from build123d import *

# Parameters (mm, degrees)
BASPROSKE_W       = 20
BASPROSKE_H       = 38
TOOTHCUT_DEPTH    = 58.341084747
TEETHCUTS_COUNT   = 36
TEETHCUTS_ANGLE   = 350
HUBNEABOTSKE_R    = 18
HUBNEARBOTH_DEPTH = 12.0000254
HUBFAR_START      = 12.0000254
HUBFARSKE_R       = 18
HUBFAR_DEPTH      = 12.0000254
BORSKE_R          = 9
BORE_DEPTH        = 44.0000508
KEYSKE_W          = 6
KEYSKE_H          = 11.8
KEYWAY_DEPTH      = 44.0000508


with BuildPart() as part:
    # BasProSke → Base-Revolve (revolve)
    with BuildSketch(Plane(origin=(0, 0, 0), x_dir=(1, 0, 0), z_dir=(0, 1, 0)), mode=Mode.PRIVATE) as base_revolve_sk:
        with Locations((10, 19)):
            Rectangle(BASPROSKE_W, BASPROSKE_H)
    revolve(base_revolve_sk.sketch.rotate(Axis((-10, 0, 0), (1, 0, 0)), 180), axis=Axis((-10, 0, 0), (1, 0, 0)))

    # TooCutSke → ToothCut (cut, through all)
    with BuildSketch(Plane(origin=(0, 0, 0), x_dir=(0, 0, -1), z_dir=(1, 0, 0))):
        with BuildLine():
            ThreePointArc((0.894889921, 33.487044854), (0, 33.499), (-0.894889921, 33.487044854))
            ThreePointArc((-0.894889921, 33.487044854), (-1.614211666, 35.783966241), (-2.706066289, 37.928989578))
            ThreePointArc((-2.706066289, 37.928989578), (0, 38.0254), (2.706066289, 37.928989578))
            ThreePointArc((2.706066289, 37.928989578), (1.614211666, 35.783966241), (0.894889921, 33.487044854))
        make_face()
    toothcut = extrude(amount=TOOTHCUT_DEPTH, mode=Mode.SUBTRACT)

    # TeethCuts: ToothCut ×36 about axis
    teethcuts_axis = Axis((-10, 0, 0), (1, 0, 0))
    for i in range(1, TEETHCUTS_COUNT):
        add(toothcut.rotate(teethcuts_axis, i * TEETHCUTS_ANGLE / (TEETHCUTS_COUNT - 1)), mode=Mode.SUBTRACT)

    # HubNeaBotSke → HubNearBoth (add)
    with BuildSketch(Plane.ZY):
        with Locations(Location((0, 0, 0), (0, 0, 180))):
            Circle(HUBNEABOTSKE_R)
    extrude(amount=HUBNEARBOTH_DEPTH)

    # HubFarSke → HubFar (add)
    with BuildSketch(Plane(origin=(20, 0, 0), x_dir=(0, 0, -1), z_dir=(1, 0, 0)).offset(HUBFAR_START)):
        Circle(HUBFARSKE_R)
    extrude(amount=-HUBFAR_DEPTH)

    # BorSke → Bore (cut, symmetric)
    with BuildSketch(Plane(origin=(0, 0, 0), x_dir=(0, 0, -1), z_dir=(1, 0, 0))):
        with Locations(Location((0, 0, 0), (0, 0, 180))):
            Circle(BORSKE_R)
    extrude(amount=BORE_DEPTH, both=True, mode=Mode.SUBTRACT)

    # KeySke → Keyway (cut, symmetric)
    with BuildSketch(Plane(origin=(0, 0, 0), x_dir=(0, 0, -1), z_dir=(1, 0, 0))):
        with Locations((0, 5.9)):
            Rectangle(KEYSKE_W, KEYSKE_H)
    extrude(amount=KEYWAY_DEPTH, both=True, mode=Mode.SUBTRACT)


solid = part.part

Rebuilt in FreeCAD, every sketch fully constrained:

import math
import FreeCAD as App
import Part
import Sketcher
Q = App.Units.Quantity


def add_polygon(sketch, points):
    """Adds a closed chain of lines whose ends are joined by coincident constraints."""
    first, n = sketch.GeometryCount, len(points)
    for a, b in zip(points, points[1:] + points[:1]):
        sketch.addGeometry(Part.LineSegment(App.Vector(*a, 0), App.Vector(*b, 0)), False)
    for i in range(n):
        sketch.addConstraint(Sketcher.Constraint("Coincident", first + i, 2, first + (i + 1) % n, 1))

doc = App.newDocument("Part")
body = doc.addObject("PartDesign::Body", "Body")

# Sketch on XZ plane
sketch1 = body.newObject("Sketcher::SketchObject", "Sketch")
sketch1.AttachmentSupport = (doc.getObject("XZ_Plane"), [""])
sketch1.MapMode = "FlatFace"
add_polygon(sketch1, [(0, -38), (0, 0), (20, 0), (20, -38)])  # lines 0-3
sketch1.addConstraint([
    Sketcher.Constraint("Vertical", 0),
    Sketcher.Constraint("Horizontal", 1),
    Sketcher.Constraint("Vertical", 2),
    Sketcher.Constraint("Horizontal", 3),
    Sketcher.Constraint("Coincident", 0, 2, -1, 1),
    Sketcher.Constraint("DistanceX", 1, 1, 1, 2, Q("20 mm")),
    Sketcher.Constraint("DistanceY", 0, 1, 0, 2, Q("38 mm")),
])
revolution = body.newObject("PartDesign::Revolution", "Revolution")
revolution.Profile = sketch1
revolution.ReferenceAxis = (sketch1, ["H_Axis"])
revolution.Angle = 360

# Sketch on YZ plane
sketch2 = body.newObject("Sketcher::SketchObject", "Sketch001")
sketch2.AttachmentSupport = (doc.getObject("YZ_Plane"), [""])
sketch2.MapMode = "FlatFace"
sketch2.addGeometry([
    Part.ArcOfCircle(Part.Circle(App.Vector(-0.000001, 0, 0), App.Vector(0, 0, 1), 33.499001), math.radians(-1.530777), math.radians(1.530777)),
    Part.ArcOfCircle(Part.Circle(App.Vector(30.347042, -14.948373, 0), App.Vector(0, 0, 1), 14.4), math.radians(58.229095), math.radians(77.405136)),
    Part.ArcOfCircle(Part.Circle(App.Vector(0, 0, 0), App.Vector(0, 0, 1), 38.0254), math.radians(-4.080887), math.radians(4.080887)),
    Part.ArcOfCircle(Part.Circle(App.Vector(30.347042, 14.948373, 0), App.Vector(0, 0, 1), 14.4), math.radians(-77.405136), math.radians(-58.229095)),
], False)
sketch2.addConstraint([
    Sketcher.Constraint("Coincident", 0, 1, 1, 2),
    Sketcher.Constraint("Coincident", 1, 1, 2, 1),
    Sketcher.Constraint("Coincident", 2, 2, 3, 2),
    Sketcher.Constraint("Coincident", 3, 1, 0, 2),
    Sketcher.Constraint("Coincident", 0, 3, -1, 1),
    Sketcher.Constraint("Coincident", 2, 3, -1, 1),
    Sketcher.Constraint("Equal", 1, 3),
    Sketcher.Constraint("Symmetric", 1, 3, 3, 3, -1),
    Sketcher.Constraint("Radius", 1, Q("14.4 mm")),
    Sketcher.Constraint("Radius", 0, Q("33.499001 mm")),
    Sketcher.Constraint("Radius", 2, Q("38.0254 mm")),
    Sketcher.Constraint("DistanceX", -1, 1, 1, 3, Q("30.347042 mm")),
    Sketcher.Constraint("DistanceY", 0, 1, -1, 1, Q("0.89489 mm")),
])
pocket1 = body.newObject("PartDesign::Pocket", "Pocket")
pocket1.Profile = sketch2
pocket1.Type = "ThroughAll"
pocket1.Reversed = True
doc.recompute()

polarpattern = body.newObject("PartDesign::PolarPattern", "PolarPattern")
polarpattern.Originals = [pocket1]
polarpattern.Axis = (doc.getObject("X_Axis"), [""])
polarpattern.Angle = 360
polarpattern.Occurrences = 36
body.Tip = polarpattern

# Sketch on YZ plane
sketch3 = body.newObject("Sketcher::SketchObject", "Sketch002")
sketch3.AttachmentSupport = (doc.getObject("YZ_Plane"), [""])
sketch3.MapMode = "FlatFace"
sketch3.addGeometry(Part.Circle(App.Vector(0, 0, 0), App.Vector(0, 0, 1), 18), False)
sketch3.addConstraint([
    Sketcher.Constraint("Coincident", 0, 3, -1, 1),
    Sketcher.Constraint("Diameter", 0, Q("36 mm")),
])
pad1 = body.newObject("PartDesign::Pad", "Pad")
pad1.Profile = sketch3
pad1.Length = 12.000025
pad1.Reversed = True

# Sketch on YZ plane
sketch4 = body.newObject("Sketcher::SketchObject", "Sketch003")
sketch4.AttachmentSupport = (doc.getObject("YZ_Plane"), [""])
sketch4.MapMode = "FlatFace"
sketch4.AttachmentOffset = App.Placement(App.Vector(0, 0, 32.000025), App.Rotation())
sketch4.addGeometry(Part.Circle(App.Vector(0, 0, 0), App.Vector(0, 0, 1), 18), False)
sketch4.addConstraint([
    Sketcher.Constraint("Coincident", 0, 3, -1, 1),
    Sketcher.Constraint("Diameter", 0, Q("36 mm")),
])
pad2 = body.newObject("PartDesign::Pad", "Pad001")
pad2.Profile = sketch4
pad2.Length = 12.000025
pad2.Reversed = True

# Sketch on YZ plane
sketch5 = body.newObject("Sketcher::SketchObject", "Sketch004")
sketch5.AttachmentSupport = (doc.getObject("YZ_Plane"), [""])
sketch5.MapMode = "FlatFace"
sketch5.addGeometry(Part.Circle(App.Vector(0, 0, 0), App.Vector(0, 0, 1), 9), False)
sketch5.addConstraint([
    Sketcher.Constraint("Coincident", 0, 3, -1, 1),
    Sketcher.Constraint("Diameter", 0, Q("18 mm")),
])
pocket2 = body.newObject("PartDesign::Pocket", "Pocket001")
pocket2.Profile = sketch5
pocket2.Length = 88.000102
pocket2.Midplane = True

# Sketch on YZ plane
sketch6 = body.newObject("Sketcher::SketchObject", "Sketch005")
sketch6.AttachmentSupport = (doc.getObject("YZ_Plane"), [""])
sketch6.MapMode = "FlatFace"
add_polygon(sketch6, [(11.8, 3), (0, 3), (0, -3), (11.8, -3)])  # lines 0-3
sketch6.addConstraint([
    Sketcher.Constraint("Horizontal", 0),
    Sketcher.Constraint("Vertical", 1),
    Sketcher.Constraint("Horizontal", 2),
    Sketcher.Constraint("Vertical", 3),
    Sketcher.Constraint("Symmetric", 0, 2, 1, 2, -1, 1),
    Sketcher.Constraint("DistanceY", 1, 2, 1, 1, Q("6 mm")),
    Sketcher.Constraint("DistanceX", 0, 2, 0, 1, Q("11.8 mm")),
])
pocket3 = body.newObject("PartDesign::Pocket", "Pocket002")
pocket3.Profile = sketch6
pocket3.Length = 88.000102
pocket3.Midplane = True

doc.recompute()
